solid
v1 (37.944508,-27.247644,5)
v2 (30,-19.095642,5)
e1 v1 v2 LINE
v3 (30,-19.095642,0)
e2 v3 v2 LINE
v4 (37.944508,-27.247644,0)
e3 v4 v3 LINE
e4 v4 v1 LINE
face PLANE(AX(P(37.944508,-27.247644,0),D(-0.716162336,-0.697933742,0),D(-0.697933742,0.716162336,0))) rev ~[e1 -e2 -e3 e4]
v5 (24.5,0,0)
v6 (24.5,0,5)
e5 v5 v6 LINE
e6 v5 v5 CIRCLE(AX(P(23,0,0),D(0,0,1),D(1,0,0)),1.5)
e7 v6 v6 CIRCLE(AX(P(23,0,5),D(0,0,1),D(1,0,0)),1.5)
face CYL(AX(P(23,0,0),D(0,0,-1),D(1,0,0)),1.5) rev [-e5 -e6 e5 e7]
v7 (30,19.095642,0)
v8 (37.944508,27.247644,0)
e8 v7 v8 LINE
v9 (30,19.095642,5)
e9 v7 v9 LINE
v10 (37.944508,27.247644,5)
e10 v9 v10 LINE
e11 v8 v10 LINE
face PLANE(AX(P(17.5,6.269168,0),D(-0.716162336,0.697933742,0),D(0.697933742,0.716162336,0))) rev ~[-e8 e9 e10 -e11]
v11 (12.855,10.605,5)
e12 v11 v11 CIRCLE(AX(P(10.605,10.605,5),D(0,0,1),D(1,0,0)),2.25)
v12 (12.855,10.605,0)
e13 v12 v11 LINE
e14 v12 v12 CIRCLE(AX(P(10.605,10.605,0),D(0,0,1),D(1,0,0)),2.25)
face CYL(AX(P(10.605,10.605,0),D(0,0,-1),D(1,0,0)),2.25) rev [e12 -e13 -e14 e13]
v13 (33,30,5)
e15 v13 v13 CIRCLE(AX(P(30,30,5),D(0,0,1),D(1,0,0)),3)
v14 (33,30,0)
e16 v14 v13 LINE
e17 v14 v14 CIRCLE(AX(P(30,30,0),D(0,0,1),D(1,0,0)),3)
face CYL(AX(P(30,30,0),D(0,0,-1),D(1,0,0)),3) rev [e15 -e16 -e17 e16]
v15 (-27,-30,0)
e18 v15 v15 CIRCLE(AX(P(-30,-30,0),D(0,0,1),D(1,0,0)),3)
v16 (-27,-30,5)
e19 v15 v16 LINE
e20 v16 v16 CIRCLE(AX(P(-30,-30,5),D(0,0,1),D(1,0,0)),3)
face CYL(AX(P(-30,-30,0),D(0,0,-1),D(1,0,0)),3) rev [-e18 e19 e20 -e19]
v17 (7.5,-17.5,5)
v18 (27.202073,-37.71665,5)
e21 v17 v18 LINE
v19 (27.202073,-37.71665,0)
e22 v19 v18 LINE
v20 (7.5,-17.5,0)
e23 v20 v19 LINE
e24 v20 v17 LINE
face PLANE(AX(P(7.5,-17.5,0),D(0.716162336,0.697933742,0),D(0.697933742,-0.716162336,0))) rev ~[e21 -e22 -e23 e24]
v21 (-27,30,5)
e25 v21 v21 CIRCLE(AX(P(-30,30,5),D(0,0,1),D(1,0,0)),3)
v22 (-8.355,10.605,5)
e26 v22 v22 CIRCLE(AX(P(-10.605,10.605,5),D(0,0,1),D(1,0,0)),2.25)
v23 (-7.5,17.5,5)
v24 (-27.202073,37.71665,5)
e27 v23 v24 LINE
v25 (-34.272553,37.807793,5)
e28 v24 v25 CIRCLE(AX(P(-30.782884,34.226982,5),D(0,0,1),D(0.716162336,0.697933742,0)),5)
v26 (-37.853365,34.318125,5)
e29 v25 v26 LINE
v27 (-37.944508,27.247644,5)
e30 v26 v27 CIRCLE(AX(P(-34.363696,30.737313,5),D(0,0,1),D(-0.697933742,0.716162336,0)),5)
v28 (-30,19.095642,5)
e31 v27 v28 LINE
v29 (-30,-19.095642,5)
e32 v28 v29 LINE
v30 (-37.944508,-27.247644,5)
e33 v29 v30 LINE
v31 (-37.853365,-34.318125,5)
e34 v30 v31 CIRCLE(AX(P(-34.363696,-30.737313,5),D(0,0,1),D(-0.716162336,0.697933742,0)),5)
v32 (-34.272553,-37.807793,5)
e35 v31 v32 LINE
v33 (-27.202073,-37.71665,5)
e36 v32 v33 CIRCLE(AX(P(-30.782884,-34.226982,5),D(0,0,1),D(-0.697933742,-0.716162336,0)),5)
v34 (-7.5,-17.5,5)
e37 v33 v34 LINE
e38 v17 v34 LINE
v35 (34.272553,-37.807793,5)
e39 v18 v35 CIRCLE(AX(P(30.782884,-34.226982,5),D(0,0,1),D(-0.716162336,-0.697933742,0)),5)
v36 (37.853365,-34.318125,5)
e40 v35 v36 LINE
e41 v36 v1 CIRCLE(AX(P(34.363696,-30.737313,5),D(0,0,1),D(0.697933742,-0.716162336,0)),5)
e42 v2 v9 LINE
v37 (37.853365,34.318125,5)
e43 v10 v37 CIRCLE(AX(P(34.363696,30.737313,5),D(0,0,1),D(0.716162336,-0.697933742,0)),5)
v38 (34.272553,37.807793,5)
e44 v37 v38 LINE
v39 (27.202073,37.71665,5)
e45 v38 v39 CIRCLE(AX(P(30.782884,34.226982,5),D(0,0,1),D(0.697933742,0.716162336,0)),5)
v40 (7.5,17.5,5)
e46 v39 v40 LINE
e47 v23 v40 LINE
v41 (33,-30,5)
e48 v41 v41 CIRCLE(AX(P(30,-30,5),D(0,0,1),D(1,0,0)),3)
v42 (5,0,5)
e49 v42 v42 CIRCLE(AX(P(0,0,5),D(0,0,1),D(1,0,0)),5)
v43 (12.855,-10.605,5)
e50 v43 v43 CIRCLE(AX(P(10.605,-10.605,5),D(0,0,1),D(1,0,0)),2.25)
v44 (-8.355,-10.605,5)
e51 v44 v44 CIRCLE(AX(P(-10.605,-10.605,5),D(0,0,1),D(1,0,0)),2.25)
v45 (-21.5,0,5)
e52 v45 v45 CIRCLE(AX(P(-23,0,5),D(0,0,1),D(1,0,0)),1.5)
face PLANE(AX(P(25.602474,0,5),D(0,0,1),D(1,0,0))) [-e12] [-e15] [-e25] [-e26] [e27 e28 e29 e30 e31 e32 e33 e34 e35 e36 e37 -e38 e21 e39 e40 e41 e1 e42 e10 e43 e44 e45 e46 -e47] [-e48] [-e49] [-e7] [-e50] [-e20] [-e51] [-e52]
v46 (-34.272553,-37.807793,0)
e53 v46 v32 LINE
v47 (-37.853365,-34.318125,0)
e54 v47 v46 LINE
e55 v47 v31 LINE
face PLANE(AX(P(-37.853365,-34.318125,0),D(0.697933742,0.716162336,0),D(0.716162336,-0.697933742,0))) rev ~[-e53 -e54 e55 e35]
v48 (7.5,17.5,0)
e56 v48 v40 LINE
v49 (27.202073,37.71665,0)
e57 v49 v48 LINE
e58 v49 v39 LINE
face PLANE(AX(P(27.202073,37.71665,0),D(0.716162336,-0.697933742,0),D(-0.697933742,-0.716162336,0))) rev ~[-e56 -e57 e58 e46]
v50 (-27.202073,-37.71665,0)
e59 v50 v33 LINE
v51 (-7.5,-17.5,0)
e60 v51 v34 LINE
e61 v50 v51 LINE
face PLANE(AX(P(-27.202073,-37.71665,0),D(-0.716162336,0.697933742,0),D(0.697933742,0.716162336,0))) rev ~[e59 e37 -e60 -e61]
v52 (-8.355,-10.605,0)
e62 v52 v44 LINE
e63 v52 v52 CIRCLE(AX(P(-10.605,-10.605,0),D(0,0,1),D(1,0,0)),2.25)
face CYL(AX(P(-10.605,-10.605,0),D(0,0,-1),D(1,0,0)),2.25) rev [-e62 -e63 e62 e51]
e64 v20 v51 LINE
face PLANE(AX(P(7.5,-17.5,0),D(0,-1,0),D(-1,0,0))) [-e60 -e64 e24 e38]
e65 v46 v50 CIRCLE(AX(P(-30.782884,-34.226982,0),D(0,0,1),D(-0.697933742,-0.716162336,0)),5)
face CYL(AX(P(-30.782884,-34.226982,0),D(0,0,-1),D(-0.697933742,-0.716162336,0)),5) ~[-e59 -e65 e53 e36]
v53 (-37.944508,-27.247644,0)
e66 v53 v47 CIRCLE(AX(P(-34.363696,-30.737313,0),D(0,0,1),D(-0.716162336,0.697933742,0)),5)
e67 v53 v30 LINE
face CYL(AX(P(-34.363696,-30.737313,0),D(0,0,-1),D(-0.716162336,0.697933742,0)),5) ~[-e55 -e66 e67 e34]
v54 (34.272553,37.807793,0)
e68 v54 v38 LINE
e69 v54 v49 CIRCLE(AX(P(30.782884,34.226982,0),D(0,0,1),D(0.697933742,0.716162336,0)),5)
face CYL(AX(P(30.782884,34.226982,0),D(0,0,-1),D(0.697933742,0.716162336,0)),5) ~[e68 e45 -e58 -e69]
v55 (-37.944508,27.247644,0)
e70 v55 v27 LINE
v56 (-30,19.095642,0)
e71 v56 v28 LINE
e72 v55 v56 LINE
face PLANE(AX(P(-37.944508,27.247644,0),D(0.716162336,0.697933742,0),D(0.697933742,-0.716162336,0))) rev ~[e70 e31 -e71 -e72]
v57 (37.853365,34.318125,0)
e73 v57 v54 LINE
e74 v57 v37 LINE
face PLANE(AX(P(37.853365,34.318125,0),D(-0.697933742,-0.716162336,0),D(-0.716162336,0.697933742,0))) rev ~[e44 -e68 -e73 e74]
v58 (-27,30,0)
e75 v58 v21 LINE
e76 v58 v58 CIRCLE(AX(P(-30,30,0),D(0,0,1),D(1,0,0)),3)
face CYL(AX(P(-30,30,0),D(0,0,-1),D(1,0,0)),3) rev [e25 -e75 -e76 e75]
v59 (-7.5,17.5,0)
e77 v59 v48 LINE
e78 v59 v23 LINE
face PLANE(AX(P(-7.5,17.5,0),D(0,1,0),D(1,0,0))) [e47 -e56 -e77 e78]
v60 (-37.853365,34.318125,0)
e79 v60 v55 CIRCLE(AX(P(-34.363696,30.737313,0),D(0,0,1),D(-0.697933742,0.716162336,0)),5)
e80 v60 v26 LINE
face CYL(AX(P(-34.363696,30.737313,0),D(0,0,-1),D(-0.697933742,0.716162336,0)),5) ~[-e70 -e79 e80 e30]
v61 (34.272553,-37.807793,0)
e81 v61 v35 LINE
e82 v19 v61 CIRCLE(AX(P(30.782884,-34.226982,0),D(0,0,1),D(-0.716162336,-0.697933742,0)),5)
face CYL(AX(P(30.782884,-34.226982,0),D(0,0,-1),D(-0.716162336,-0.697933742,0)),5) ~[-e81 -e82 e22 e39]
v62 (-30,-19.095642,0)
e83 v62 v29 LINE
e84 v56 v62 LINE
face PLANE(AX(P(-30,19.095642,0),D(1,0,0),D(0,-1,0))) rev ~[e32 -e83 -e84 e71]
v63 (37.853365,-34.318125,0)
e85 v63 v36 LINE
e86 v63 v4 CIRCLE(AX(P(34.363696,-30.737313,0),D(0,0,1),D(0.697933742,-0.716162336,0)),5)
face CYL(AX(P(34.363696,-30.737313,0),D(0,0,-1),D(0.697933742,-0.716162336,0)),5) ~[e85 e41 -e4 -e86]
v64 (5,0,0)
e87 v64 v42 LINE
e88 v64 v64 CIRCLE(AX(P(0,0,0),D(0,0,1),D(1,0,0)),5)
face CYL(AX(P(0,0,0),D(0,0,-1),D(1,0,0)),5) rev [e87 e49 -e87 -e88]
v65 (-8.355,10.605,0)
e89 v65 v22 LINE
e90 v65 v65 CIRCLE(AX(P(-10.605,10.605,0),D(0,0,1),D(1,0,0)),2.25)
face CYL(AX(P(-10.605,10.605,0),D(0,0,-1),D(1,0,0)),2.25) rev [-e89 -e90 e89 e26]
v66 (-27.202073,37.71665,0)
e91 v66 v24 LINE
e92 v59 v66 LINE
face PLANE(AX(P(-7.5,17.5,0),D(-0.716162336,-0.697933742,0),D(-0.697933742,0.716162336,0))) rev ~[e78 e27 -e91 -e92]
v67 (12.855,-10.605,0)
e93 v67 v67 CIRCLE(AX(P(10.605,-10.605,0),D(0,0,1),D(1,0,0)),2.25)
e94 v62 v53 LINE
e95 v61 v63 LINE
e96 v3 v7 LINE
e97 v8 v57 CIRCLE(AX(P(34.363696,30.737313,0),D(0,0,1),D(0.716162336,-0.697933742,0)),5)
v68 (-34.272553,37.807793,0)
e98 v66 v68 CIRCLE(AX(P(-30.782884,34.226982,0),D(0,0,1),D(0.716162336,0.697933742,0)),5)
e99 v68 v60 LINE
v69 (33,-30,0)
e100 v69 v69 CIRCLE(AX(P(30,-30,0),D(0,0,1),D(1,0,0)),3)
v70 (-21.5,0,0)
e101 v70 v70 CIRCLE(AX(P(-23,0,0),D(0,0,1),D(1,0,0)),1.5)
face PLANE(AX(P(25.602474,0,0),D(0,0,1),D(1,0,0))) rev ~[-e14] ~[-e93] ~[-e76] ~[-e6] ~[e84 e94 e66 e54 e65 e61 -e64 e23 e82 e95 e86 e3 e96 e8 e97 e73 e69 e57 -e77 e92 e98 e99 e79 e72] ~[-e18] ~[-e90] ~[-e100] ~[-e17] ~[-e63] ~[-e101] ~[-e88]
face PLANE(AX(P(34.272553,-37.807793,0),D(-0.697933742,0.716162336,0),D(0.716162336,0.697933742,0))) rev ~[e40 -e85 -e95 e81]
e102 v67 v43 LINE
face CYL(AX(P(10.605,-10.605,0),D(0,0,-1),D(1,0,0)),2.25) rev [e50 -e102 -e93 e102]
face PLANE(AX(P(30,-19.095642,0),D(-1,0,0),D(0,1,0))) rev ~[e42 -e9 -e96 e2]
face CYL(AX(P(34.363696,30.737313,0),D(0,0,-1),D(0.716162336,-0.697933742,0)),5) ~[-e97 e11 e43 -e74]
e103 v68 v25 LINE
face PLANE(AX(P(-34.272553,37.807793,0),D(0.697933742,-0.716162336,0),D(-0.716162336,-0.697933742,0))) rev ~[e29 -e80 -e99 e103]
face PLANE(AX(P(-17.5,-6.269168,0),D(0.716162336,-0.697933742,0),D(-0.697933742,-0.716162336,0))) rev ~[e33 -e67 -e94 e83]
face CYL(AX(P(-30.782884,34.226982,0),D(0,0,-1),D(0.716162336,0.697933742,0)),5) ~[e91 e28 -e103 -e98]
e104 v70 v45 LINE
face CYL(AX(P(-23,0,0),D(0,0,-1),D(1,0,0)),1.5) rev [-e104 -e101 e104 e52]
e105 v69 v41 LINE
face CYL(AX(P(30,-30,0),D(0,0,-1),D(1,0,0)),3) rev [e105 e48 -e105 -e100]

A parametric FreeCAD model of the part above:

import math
import FreeCAD as App
import Part
import Sketcher
from FreeCAD import Vector

doc = App.newDocument("Part")
body = doc.addObject("PartDesign::Body", "Body")

# Sketch on XY plane
sketch1 = body.newObject("Sketcher::SketchObject", "Sketch")
sketch1.AttachmentSupport = (doc.getObject("XY_Plane"), [""])
sketch1.MapMode = "FlatFace"
sketch1.addGeometry([
    Part.LineSegment(Vector(-7.5, -17.5, 0), Vector(7.5, -17.5, 0)),  # 0
    Part.ArcOfCircle(Part.Circle(Vector(7.5, -7.5, 0), Vector(0, 0, 1), 10), math.radians(-90), math.radians(0)),  # 1
    Part.LineSegment(Vector(17.5, -7.5, 0), Vector(17.5, 7.5, 0)),  # 2
    Part.ArcOfCircle(Part.Circle(Vector(7.5, 7.5, 0), Vector(0, 0, 1), 10), math.radians(0), math.radians(90)),  # 3
    Part.LineSegment(Vector(7.5, 17.5, 0), Vector(-7.5, 17.5, 0)),  # 4
    Part.ArcOfCircle(Part.Circle(Vector(-7.5, 7.5, 0), Vector(0, 0, 1), 10), math.radians(90), math.radians(180)),  # 5
    Part.LineSegment(Vector(-17.5, 7.5, 0), Vector(-17.5, -7.5, 0)),  # 6
    Part.ArcOfCircle(Part.Circle(Vector(-7.5, -7.5, 0), Vector(0, 0, 1), 10), math.radians(180), math.radians(270)),  # 7
    Part.Circle(Vector(10.605, -10.605, 0), Vector(0, 0, 1), 2.25),  # 8
    Part.Circle(Vector(-10.605, -10.605, 0), Vector(0, 0, 1), 2.25),  # 9
    Part.Circle(Vector(10.605, 10.605, 0), Vector(0, 0, 1), 2.25),  # 10
    Part.Circle(Vector(0, 0, 0), Vector(0, 0, 1), 8),  # 11
    Part.Circle(Vector(-10.605, 10.605, 0), Vector(0, 0, 1), 2.25),  # 12
], False)
sketch1.addConstraint([
    Sketcher.Constraint("Tangent", 0, 2, 1, 1),
    Sketcher.Constraint("Tangent", 1, 2, 2, 1),
    Sketcher.Constraint("Tangent", 2, 2, 3, 1),
    Sketcher.Constraint("Tangent", 3, 2, 4, 1),
    Sketcher.Constraint("Tangent", 4, 2, 5, 1),
    Sketcher.Constraint("Tangent", 5, 2, 6, 1),
    Sketcher.Constraint("Tangent", 6, 2, 7, 1),
    Sketcher.Constraint("Tangent", 7, 2, 0, 1),
    Sketcher.Constraint("Horizontal", 0),
    Sketcher.Constraint("Vertical", 2),
    Sketcher.Constraint("Horizontal", 4),
    Sketcher.Constraint("Vertical", 6),
    Sketcher.Constraint("Coincident", 11, 3, -1, 1),
    Sketcher.Constraint("Equal", 1, 3),
    Sketcher.Constraint("Equal", 3, 5),
    Sketcher.Constraint("Equal", 5, 7),
    Sketcher.Constraint("Equal", 8, 9),
    Sketcher.Constraint("Equal", 9, 10),
    Sketcher.Constraint("Equal", 10, 12),
    Sketcher.Constraint("Symmetric", 1, 3, 5, 3, -1, 1),
    Sketcher.Constraint("Symmetric", 9, 3, 10, 3, -1, 1),
    Sketcher.Constraint("Symmetric", 8, 3, 12, 3, -1, 1),
    Sketcher.Constraint("Symmetric", 8, 3, 9, 3, -2),
    Sketcher.Constraint("Equal", 4, 2),
    Sketcher.Constraint("Diameter", 11, 16.0),
    Sketcher.Constraint("Radius", 1, 10.0),
    Sketcher.Constraint("Diameter", 8, 4.5),
    Sketcher.Constraint("DistanceX", 0, 1, 0, 2, 15.0),
    Sketcher.Constraint("DistanceX", 9, 3, 8, 3, 21.21),
    Sketcher.Constraint("DistanceY", 8, 3, 10, 3, 21.21),
])
pad1 = body.newObject("PartDesign::Pad", "Pad")
pad1.Profile = sketch1
pad1.Length = 5

# Sketch on XY plane
sketch2 = body.newObject("Sketcher::SketchObject", "Sketch001")
sketch2.AttachmentSupport = (doc.getObject("XY_Plane"), [""])
sketch2.MapMode = "FlatFace"
sketch2.addGeometry([
    Part.LineSegment(Vector(-37.944508, 27.247644, 0), Vector(-17.5, 6.269168, 0)),  # 0
    Part.LineSegment(Vector(-17.5, 6.269168, 0), Vector(-17.5, 7.5, 0)),  # 1
    Part.ArcOfCircle(Part.Circle(Vector(-7.5, 7.5, 0), Vector(0, 0, 1), 10), math.radians(90), math.radians(180)),  # 2
    Part.LineSegment(Vector(-7.5, 17.5, 0), Vector(-27.202073, 37.71665, 0)),  # 3
    Part.ArcOfCircle(Part.Circle(Vector(-30.782884, 34.226982, 0), Vector(0, 0, 1), 5), math.radians(44.261462), math.radians(134.261462)),  # 4
    Part.LineSegment(Vector(-34.272553, 37.807793, 0), Vector(-37.853365, 34.318125, 0)),  # 5
    Part.ArcOfCircle(Part.Circle(Vector(-34.363696, 30.737313, 0), Vector(0, 0, 1), 5), math.radians(134.261462), math.radians(224.261462)),  # 6
    Part.Circle(Vector(-30, 30, 0), Vector(0, 0, 1), 3),  # 7
    Part.ArcOfCircle(Part.Circle(Vector(34.363696, 30.737313, 0), Vector(0, 0, 1), 5), math.radians(-44.261462), math.radians(45.738538)),  # 8
    Part.LineSegment(Vector(37.853365, 34.318125, 0), Vector(34.272553, 37.807793, 0)),  # 9
    Part.ArcOfCircle(Part.Circle(Vector(30.782884, 34.226982, 0), Vector(0, 0, 1), 5), math.radians(45.738538), math.radians(135.738538)),  # 10
    Part.LineSegment(Vector(27.202073, 37.71665, 0), Vector(7.5, 17.5, 0)),  # 11
    Part.ArcOfCircle(Part.Circle(Vector(7.5, 7.5, 0), Vector(0, 0, 1), 10), math.radians(0), math.radians(90)),  # 12
    Part.LineSegment(Vector(17.5, 7.5, 0), Vector(17.5, 6.269168, 0)),  # 13
    Part.LineSegment(Vector(17.5, 6.269168, 0), Vector(37.944508, 27.247644, 0)),  # 14
    Part.Circle(Vector(30, 30, 0), Vector(0, 0, 1), 3),  # 15
    Part.LineSegment(Vector(37.944508, -27.247644, 0), Vector(17.5, -6.269168, 0)),  # 16
    Part.LineSegment(Vector(17.5, -6.269168, 0), Vector(17.5, -7.5, 0)),  # 17
    Part.ArcOfCircle(Part.Circle(Vector(7.5, -7.5, 0), Vector(0, 0, 1), 10), math.radians(-90), math.radians(0)),  # 18
    Part.LineSegment(Vector(7.5, -17.5, 0), Vector(27.202073, -37.71665, 0)),  # 19
    Part.ArcOfCircle(Part.Circle(Vector(30.782884, -34.226982, 0), Vector(0, 0, 1), 5), math.radians(-135.738538), math.radians(-45.738538)),  # 20
    Part.LineSegment(Vector(34.272553, -37.807793, 0), Vector(37.853365, -34.318125, 0)),  # 21
    Part.ArcOfCircle(Part.Circle(Vector(34.363696, -30.737313, 0), Vector(0, 0, 1), 5), math.radians(-45.738538), math.radians(44.261462)),  # 22
    Part.Circle(Vector(30, -30, 0), Vector(0, 0, 1), 3),  # 23
    Part.LineSegment(Vector(-17.5, -7.5, 0), Vector(-17.5, -6.269168, 0)),  # 24
    Part.LineSegment(Vector(-17.5, -6.269168, 0), Vector(-37.944508, -27.247644, 0)),  # 25
    Part.ArcOfCircle(Part.Circle(Vector(-34.363696, -30.737313, 0), Vector(0, 0, 1), 5), math.radians(135.738538), math.radians(225.738538)),  # 26
    Part.LineSegment(Vector(-37.853365, -34.318125, 0), Vector(-34.272553, -37.807793, 0)),  # 27
    Part.ArcOfCircle(Part.Circle(Vector(-30.782884, -34.226982, 0), Vector(0, 0, 1), 5), math.radians(-134.261462), math.radians(-44.261462)),  # 28
    Part.LineSegment(Vector(-27.202073, -37.71665, 0), Vector(-7.5, -17.5, 0)),  # 29
    Part.ArcOfCircle(Part.Circle(Vector(-7.5, -7.5, 0), Vector(0, 0, 1), 10), math.radians(180), math.radians(270)),  # 30
    Part.Circle(Vector(-30, -30, 0), Vector(0, 0, 1), 3),  # 31
], False)
sketch2.addConstraint([
    Sketcher.Constraint("Coincident", 0, 2, 1, 1),
    Sketcher.Constraint("Tangent", 1, 2, 2, 2),
    Sketcher.Constraint("Coincident", 2, 1, 3, 1),
    Sketcher.Constraint("Tangent", 3, 2, 4, 1),
    Sketcher.Constraint("Tangent", 4, 2, 5, 1),
    Sketcher.Constraint("Tangent", 5, 2, 6, 1),
    Sketcher.Constraint("Tangent", 6, 2, 0, 1),
    Sketcher.Constraint("Tangent", 8, 2, 9, 1),
    Sketcher.Constraint("Tangent", 9, 2, 10, 1),
    Sketcher.Constraint("Tangent", 10, 2, 11, 1),
    Sketcher.Constraint("Coincident", 11, 2, 12, 2),
    Sketcher.Constraint("Tangent", 12, 1, 13, 1),
    Sketcher.Constraint("Coincident", 13, 2, 14, 1),
    Sketcher.Constraint("Tangent", 14, 2, 8, 1),
    Sketcher.Constraint("Coincident", 16, 2, 17, 1),
    Sketcher.Constraint("Tangent", 17, 2, 18, 2),
    Sketcher.Constraint("Coincident", 18, 1, 19, 1),
    Sketcher.Constraint("Tangent", 19, 2, 20, 1),
    Sketcher.Constraint("Tangent", 20, 2, 21, 1),
    Sketcher.Constraint("Tangent", 21, 2, 22, 1),
    Sketcher.Constraint("Tangent", 22, 2, 16, 1),
    Sketcher.Constraint("Coincident", 24, 2, 25, 1),
    Sketcher.Constraint("Tangent", 25, 2, 26, 1),
    Sketcher.Constraint("Tangent", 26, 2, 27, 1),
    Sketcher.Constraint("Tangent", 27, 2, 28, 1),
    Sketcher.Constraint("Tangent", 28, 2, 29, 1),
    Sketcher.Constraint("Coincident", 29, 2, 30, 2),
    Sketcher.Constraint("Tangent", 30, 1, 24, 1),
    Sketcher.Constraint("Vertical", 1),
    Sketcher.Constraint("Vertical", 13),
    Sketcher.Constraint("Vertical", 17),
    Sketcher.Constraint("Vertical", 24),
    Sketcher.Constraint("Equal", 4, 6),
    Sketcher.Constraint("Equal", 6, 8),
    Sketcher.Constraint("Equal", 8, 10),
    Sketcher.Constraint("Equal", 2, 12),
    Sketcher.Constraint("Equal", 7, 15),
    Sketcher.Constraint("Equal", 12, 18),
    Sketcher.Constraint("Equal", 10, 20),
    Sketcher.Constraint("Equal", 20, 22),
    Sketcher.Constraint("Equal", 15, 23),
    Sketcher.Constraint("Equal", 22, 26),
    Sketcher.Constraint("Equal", 26, 28),
    Sketcher.Constraint("Equal", 18, 30),
    Sketcher.Constraint("Equal", 23, 31),
    Sketcher.Constraint("Symmetric", 2, 3, 18, 3, -1, 1),
    Sketcher.Constraint("Symmetric", 4, 3, 20, 3, -1, 1),
    Sketcher.Constraint("Symmetric", 6, 3, 22, 3, -1, 1),
    Sketcher.Constraint("Symmetric", 7, 3, 23, 3, -1, 1),
    Sketcher.Constraint("Symmetric", 8, 3, 26, 3, -1, 1),
    Sketcher.Constraint("Symmetric", 10, 3, 28, 3, -1, 1),
    Sketcher.Constraint("Symmetric", 12, 3, 30, 3, -1, 1),
    Sketcher.Constraint("Symmetric", 15, 3, 31, 3, -1, 1),
    Sketcher.Constraint("Symmetric", 6, 3, 8, 3, -2),
    Sketcher.Constraint("Symmetric", 4, 3, 10, 3, -2),
    Sketcher.Constraint("Symmetric", 2, 3, 12, 3, -2),
    Sketcher.Constraint("Symmetric", 7, 3, 15, 3, -2),
    Sketcher.Constraint("Parallel", 0, 3),
    Sketcher.Constraint("Perpendicular", 3, 5),
    Sketcher.Constraint("Perpendicular", 9, 11),
    Sketcher.Constraint("Parallel", 11, 14),
    Sketcher.Constraint("Perpendicular", 5, 16),
    Sketcher.Constraint("Parallel", 16, 19),
    Sketcher.Constraint("Parallel", 14, 25),
    Sketcher.Constraint("Perpendicular", 27, 29),
    Sketcher.Constraint("Vertical", 30, 3, 2, 1),
    Sketcher.Constraint("Diameter", 7, 6.0),
    Sketcher.Constraint("Radius", 2, 10.0),
    Sketcher.Constraint("Radius", 4, 5.0),
    Sketcher.Constraint("Distance", 5, 5.0),
    Sketcher.Constraint("DistanceX", 7, 3, -1, 1, 30.0),
    Sketcher.Constraint("DistanceY", -1, 1, 7, 3, 30.0),
    Sketcher.Constraint("DistanceX", 2, 3, 12, 3, 15.0),
    Sketcher.Constraint("DistanceY", 18, 3, 12, 3, 15.0),
    Sketcher.Constraint("DistanceY", 1, 1, 1, 2, 1.230832),
    Sketcher.Constraint("DistanceY", -1, 1, 4, 3, 34.226982),
])
pad2 = body.newObject("PartDesign::Pad", "Pad001")
pad2.Profile = sketch2
pad2.Length = 5

# Sketch on XY plane
sketch3 = body.newObject("Sketcher::SketchObject", "Sketch002")
sketch3.AttachmentSupport = (doc.getObject("XY_Plane"), [""])
sketch3.MapMode = "FlatFace"
sketch3.addGeometry([
    Part.LineSegment(Vector(17.5, 6.269168, 0), Vector(17.5, -6.269168, 0)),  # 0
    Part.LineSegment(Vector(17.5, -6.269168, 0), Vector(30, -19.095642, 0)),  # 1
    Part.LineSegment(Vector(30, -19.095642, 0), Vector(30, 19.095642, 0)),  # 2
    Part.LineSegment(Vector(30, 19.095642, 0), Vector(17.5, 6.269168, 0)),  # 3
    Part.Circle(Vector(23, 0, 0), Vector(0, 0, 1), 1.5),  # 4
    Part.LineSegment(Vector(-30, -19.095642, 0), Vector(-17.5, -6.269168, 0)),  # 5
    Part.LineSegment(Vector(-17.5, -6.269168, 0), Vector(-17.5, 6.269168, 0)),  # 6
    Part.LineSegment(Vector(-17.5, 6.269168, 0), Vector(-30, 19.095642, 0)),  # 7
    Part.LineSegment(Vector(-30, 19.095642, 0), Vector(-30, -19.095642, 0)),  # 8
    Part.Circle(Vector(-23, 0, 0), Vector(0, 0, 1), 1.5),  # 9
    Part.Circle(Vector(0, 0, 0), Vector(0, 0, 1), 8),  # 10
    Part.Circle(Vector(0, 0, 0), Vector(0, 0, 1), 5),  # 11
], False)
sketch3.addConstraint([
    Sketcher.Constraint("Coincident", 0, 2, 1, 1),
    Sketcher.Constraint("Coincident", 1, 2, 2, 1),
    Sketcher.Constraint("Coincident", 2, 2, 3, 1),
    Sketcher.Constraint("Coincident", 3, 2, 0, 1),
    Sketcher.Constraint("Coincident", 5, 2, 6, 1),
    Sketcher.Constraint("Coincident", 6, 2, 7, 1),
    Sketcher.Constraint("Coincident", 7, 2, 8, 1),
    Sketcher.Constraint("Coincident", 8, 2, 5, 1),
    Sketcher.Constraint("Vertical", 0),
    Sketcher.Constraint("Vertical", 2),
    Sketcher.Constraint("Vertical", 6),
    Sketcher.Constraint("Vertical", 8),
    Sketcher.Constraint("Coincident", 10, 3, -1, 1),
    Sketcher.Constraint("Coincident", 11, 3, -1, 1),
    Sketcher.Constraint("Equal", 4, 9),
    Sketcher.Constraint("Symmetric", 4, 3, 9, 3, -1, 1),
    Sketcher.Constraint("Symmetric", 3, 2, 5, 2, -1, 1),
    Sketcher.Constraint("Symmetric", 1, 2, 7, 2, -1, 1),
    Sketcher.Constraint("PointOnObject", 4, 3, -1),
    Sketcher.Constraint("Parallel", 3, 5),
    Sketcher.Constraint("Parallel", 1, 7),
    Sketcher.Constraint("Horizontal", 0, 2, 5, 2),
    Sketcher.Constraint("Horizontal", 2, 2, 7, 2),
    Sketcher.Constraint("Diameter", 4, 3.0),
    Sketcher.Constraint("Diameter", 10, 16.0),
    Sketcher.Constraint("Diameter", 11, 10.0),
    Sketcher.Constraint("DistanceX", -1, 1, 4, 3, 23.0),
    Sketcher.Constraint("DistanceX", -1, 1, 1, 2, 30.0),
    Sketcher.Constraint("DistanceX", 5, 2, 0, 2, 35.0),
    Sketcher.Constraint("Distance", 1, 17.91001),
    Sketcher.Constraint("DistanceY", 0, 2, 0, 1, 12.538336),
])
pad3 = body.newObject("PartDesign::Pad", "Pad002")
pad3.Profile = sketch3
pad3.Length = 5

doc.recompute()
